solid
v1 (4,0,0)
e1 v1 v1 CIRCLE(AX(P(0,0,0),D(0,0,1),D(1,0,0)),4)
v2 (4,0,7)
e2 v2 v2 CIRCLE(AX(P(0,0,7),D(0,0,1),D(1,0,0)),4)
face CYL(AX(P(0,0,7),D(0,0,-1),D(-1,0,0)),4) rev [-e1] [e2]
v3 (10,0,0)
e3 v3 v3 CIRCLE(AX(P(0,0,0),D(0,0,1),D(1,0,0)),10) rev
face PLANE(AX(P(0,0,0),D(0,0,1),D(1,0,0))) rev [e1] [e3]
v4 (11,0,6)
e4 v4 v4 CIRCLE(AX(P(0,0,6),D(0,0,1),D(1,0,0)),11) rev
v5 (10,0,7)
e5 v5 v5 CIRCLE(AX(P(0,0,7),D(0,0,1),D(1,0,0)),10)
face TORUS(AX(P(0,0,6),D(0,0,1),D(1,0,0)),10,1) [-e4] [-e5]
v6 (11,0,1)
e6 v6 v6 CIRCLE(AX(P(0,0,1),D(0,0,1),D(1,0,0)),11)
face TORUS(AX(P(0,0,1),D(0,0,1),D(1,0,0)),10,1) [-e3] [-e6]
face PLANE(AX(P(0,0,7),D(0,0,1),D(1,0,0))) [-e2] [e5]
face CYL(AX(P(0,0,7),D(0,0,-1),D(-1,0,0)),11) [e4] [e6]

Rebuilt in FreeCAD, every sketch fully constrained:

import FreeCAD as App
import Part
import Sketcher

V = App.Vector
Q = App.Units.Quantity


def edges_at(feature, points):
    """Names of the edges that pass closest to the given points."""
    edges = feature.Shape.Edges
    near = lambda p: min(range(len(edges)), key=lambda i: edges[i].distToShape(Part.Vertex(*p))[0])
    return sorted({f"Edge{near(p) + 1}" for p in points})

doc = App.newDocument("Part")
params = doc.addObject("Spreadsheet::Sheet", "Params")
for row, (alias, value) in enumerate([
    ("sketch1_diameter", "22 mm"),
    ("sketch1_diameter2", "8 mm"),
    ("pad1_length", "7 mm"),
    ("fillet_radius", "1 mm"),
], start=1):
    params.set(f"A{row}", alias)
    params.set(f"B{row}", "=" + value)
    params.setAlias(f"B{row}", alias)

body = doc.addObject("PartDesign::Body", "Body")

# Sketch on XY plane
sketch1 = doc.addObject("Sketcher::SketchObject", "Sketch")
body.addObject(sketch1)
sketch1.AttachmentSupport = (doc.XY_Plane, [""])
sketch1.MapMode = "FlatFace"
sketch1.addGeometry(Part.Circle(V(0, 0, 0), V(0, 0, 1), 11), False)
sketch1.addGeometry(Part.Circle(V(0, 0, 0), V(0, 0, 1), 4), False)
sketch1.addConstraint(Sketcher.Constraint("Coincident", 0, 3, -1, 1))
sketch1.addConstraint(Sketcher.Constraint("Coincident", 1, 3, -1, 1))
sketch1.addConstraint(Sketcher.Constraint("Diameter", 0, Q("22 mm")))
sketch1.addConstraint(Sketcher.Constraint("Diameter", 1, Q("8 mm")))
sketch1.setExpression("Constraints[2]", "Params.sketch1_diameter")
sketch1.setExpression("Constraints[3]", "Params.sketch1_diameter2")
pad1 = doc.addObject("PartDesign::Pad", "Pad")
body.addObject(pad1)
pad1.Profile = sketch1
pad1.setExpression("Length", "Params.pad1_length")
doc.recompute()

fillet = doc.addObject("PartDesign::Fillet", "Fillet")
body.addObject(fillet)
fillet.Base = (pad1, edges_at(pad1, [(-11, 0, 0), (-11, 0, 7)]))
fillet.setExpression("Radius", "Params.fillet_radius")

doc.recompute()
